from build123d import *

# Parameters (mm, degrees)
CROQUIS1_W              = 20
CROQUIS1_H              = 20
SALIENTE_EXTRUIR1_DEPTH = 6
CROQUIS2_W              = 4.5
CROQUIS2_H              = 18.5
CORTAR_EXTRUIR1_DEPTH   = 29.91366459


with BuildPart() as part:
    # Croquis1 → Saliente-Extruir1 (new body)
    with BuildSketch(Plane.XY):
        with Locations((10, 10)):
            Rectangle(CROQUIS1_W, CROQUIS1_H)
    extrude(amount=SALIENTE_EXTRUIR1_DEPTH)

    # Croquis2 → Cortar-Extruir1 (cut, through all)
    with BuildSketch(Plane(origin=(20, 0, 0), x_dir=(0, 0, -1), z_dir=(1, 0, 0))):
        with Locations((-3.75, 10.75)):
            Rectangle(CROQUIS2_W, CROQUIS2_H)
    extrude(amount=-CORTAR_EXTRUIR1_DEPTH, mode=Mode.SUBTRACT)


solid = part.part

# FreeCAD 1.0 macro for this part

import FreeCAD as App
import Part
import Sketcher
from FreeCAD import Vector

doc = App.newDocument("Part")
body = doc.addObject("PartDesign::Body", "Body")

sketch1 = doc.addObject("Sketcher::SketchObject", "Sketch")
body.addObject(sketch1)
sketch1.AttachmentSupport = (doc.XY_Plane, [""])
sketch1.MapMode = "FlatFace"
sketch1.addGeometry([
    Part.LineSegment(Vector(0, 20, 0), Vector(0, 0, 0)),
    Part.LineSegment(Vector(0, 0, 0), Vector(20, 0, 0)),
    Part.LineSegment(Vector(20, 0, 0), Vector(20, 20, 0)),
    Part.LineSegment(Vector(20, 20, 0), Vector(0, 20, 0)),
], False)
sketch1.addConstraint([
    Sketcher.Constraint("Coincident", 0, 2, 1, 1),
    Sketcher.Constraint("Coincident", 1, 2, 2, 1),
    Sketcher.Constraint("Coincident", 2, 2, 3, 1),
    Sketcher.Constraint("Coincident", 3, 2, 0, 1),
    Sketcher.Constraint("Vertical", 0),
    Sketcher.Constraint("Horizontal", 1),
    Sketcher.Constraint("Vertical", 2),
    Sketcher.Constraint("Horizontal", 3),
    Sketcher.Constraint("Coincident", 0, 2, -1, 1),
    Sketcher.Constraint("Equal", 3, 0),
    Sketcher.Constraint("DistanceX", 1, 1, 1, 2, 20.0),
])
pad1 = doc.addObject("PartDesign::Pad", "Pad")
body.addObject(pad1)
pad1.Profile = sketch1
pad1.Length = 6

sketch2 = doc.addObject("Sketcher::SketchObject", "Sketch001")
body.addObject(sketch2)
sketch2.AttachmentSupport = (doc.YZ_Plane, [""])
sketch2.MapMode = "FlatFace"
sketch2.AttachmentOffset = App.Placement(Vector(0, 0, 20), App.Rotation())
sketch2.addGeometry([
    Part.LineSegment(Vector(20, 6, 0), Vector(1.5, 6, 0)),
    Part.LineSegment(Vector(1.5, 6, 0), Vector(1.5, 1.5, 0)),
    Part.LineSegment(Vector(1.5, 1.5, 0), Vector(20, 1.5, 0)),
    Part.LineSegment(Vector(20, 1.5, 0), Vector(20, 6, 0)),
], False)
sketch2.addConstraint([
    Sketcher.Constraint("Coincident", 0, 2, 1, 1),
    Sketcher.Constraint("Coincident", 1, 2, 2, 1),
    Sketcher.Constraint("Coincident", 2, 2, 3, 1),
    Sketcher.Constraint("Coincident", 3, 2, 0, 1),
    Sketcher.Constraint("Horizontal", 0),
    Sketcher.Constraint("Vertical", 1),
    Sketcher.Constraint("Horizontal", 2),
    Sketcher.Constraint("Vertical", 3),
    Sketcher.Constraint("DistanceX", 0, 2, 0, 1, 18.5),
    Sketcher.Constraint("DistanceY", 1, 2, 1, 1, 4.5),
    Sketcher.Constraint("DistanceY", -1, 1, 0, 2, 6.0),
    Sketcher.Constraint("DistanceX", -1, 1, 2, 2, 20.0),
])
pocket1 = doc.addObject("PartDesign::Pocket", "Pocket")
body.addObject(pocket1)
pocket1.Profile = sketch2
pocket1.Type = "ThroughAll"

doc.recompute()
